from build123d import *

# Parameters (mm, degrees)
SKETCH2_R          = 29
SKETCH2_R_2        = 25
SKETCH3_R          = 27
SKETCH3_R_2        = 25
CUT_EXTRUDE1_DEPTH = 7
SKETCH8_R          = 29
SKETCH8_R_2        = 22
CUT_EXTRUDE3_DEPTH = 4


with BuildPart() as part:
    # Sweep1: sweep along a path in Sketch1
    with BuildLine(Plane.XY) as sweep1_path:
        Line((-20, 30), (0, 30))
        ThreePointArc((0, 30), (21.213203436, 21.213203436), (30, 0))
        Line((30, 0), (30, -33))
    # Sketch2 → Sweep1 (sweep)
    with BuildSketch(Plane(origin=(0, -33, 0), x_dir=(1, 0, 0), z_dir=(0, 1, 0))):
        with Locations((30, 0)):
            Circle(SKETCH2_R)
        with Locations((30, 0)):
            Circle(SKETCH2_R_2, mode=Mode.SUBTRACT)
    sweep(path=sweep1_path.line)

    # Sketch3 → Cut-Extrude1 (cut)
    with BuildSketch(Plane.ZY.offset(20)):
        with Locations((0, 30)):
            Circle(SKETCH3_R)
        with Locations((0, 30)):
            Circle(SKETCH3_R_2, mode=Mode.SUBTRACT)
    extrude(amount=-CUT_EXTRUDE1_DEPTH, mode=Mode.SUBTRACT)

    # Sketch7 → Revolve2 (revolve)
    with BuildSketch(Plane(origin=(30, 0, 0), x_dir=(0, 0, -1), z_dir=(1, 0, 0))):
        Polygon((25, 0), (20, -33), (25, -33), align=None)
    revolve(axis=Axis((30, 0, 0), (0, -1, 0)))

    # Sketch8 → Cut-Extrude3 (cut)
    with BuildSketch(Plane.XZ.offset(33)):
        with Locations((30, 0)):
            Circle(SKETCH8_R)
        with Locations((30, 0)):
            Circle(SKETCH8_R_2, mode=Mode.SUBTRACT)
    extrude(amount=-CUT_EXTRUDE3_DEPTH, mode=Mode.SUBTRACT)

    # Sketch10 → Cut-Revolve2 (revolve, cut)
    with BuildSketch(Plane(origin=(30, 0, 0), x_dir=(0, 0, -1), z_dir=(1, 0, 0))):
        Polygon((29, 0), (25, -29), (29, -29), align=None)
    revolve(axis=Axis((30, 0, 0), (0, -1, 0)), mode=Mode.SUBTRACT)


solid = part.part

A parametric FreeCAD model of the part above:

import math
import FreeCAD as App
import Part
import Sketcher

V = App.Vector

doc = App.newDocument("Part")
body = doc.addObject("PartDesign::Body", "Body")

# Sketch on XZ plane
sketch1 = body.newObject("Sketcher::SketchObject", "Sketch")
sketch1.AttachmentSupport = (doc.getObject("XZ_Plane"), [""])
sketch1.MapMode = "FlatFace"
sketch1.AttachmentOffset = App.Placement(V(0, 0, 33), App.Rotation())
sketch1.addGeometry([
    Part.Circle(V(30, 0, 0), V(0, 0, 1), 29),
    Part.Circle(V(30, 0, 0), V(0, 0, 1), 25),
], False)
sketch1.addConstraint([
    Sketcher.Constraint("Coincident", 1, 3, 0, 3),
    Sketcher.Constraint("PointOnObject", 0, 3, -1),
    Sketcher.Constraint("Diameter", 0, 58.0),
    Sketcher.Constraint("Diameter", 1, 50.0),
    Sketcher.Constraint("DistanceX", -1, 1, 0, 3, 30.0),
])

# Sketch on XY plane
sketch2 = body.newObject("Sketcher::SketchObject", "Sketch001")
sketch2.AttachmentSupport = (doc.getObject("XY_Plane"), [""])
sketch2.MapMode = "FlatFace"
sketch2.addGeometry([
    Part.LineSegment(V(-20, 30, 0), V(0, 30, 0)),
    Part.ArcOfCircle(Part.Circle(V(0, 0, 0), V(0, 0, 1), 30), math.radians(0), math.radians(90)),
    Part.LineSegment(V(30, 0, 0), V(30, -33, 0)),
], False)
sketch2.addConstraint([
    Sketcher.Constraint("Tangent", 0, 2, 1, 2),
    Sketcher.Constraint("Tangent", 1, 1, 2, 1),
    Sketcher.Constraint("Horizontal", 0),
    Sketcher.Constraint("Vertical", 2),
    Sketcher.Constraint("Coincident", 1, 3, -1, 1),
    Sketcher.Constraint("Radius", 1, 30.0),
    Sketcher.Constraint("DistanceX", 0, 1, 0, 2, 20.0),
    Sketcher.Constraint("DistanceY", 2, 2, 2, 1, 33.0),
])
doc.recompute()

additivepipe = body.newObject("PartDesign::AdditivePipe", "AdditivePipe")
additivepipe.Profile = sketch1
additivepipe.Spine = (sketch2, ["Edge1", "Edge2", "Edge3"])

# Sketch on YZ plane
sketch3 = body.newObject("Sketcher::SketchObject", "Sketch002")
sketch3.AttachmentSupport = (doc.getObject("YZ_Plane"), [""])
sketch3.MapMode = "FlatFace"
sketch3.AttachmentOffset = App.Placement(V(0, 0, -20), App.Rotation())
sketch3.addGeometry([
    Part.Circle(V(30, 0, 0), V(0, 0, 1), 27),
    Part.Circle(V(30, 0, 0), V(0, 0, 1), 25),
], False)
sketch3.addConstraint([
    Sketcher.Constraint("Coincident", 1, 3, 0, 3),
    Sketcher.Constraint("PointOnObject", 0, 3, -1),
    Sketcher.Constraint("Diameter", 0, 54.0),
    Sketcher.Constraint("Diameter", 1, 50.0),
    Sketcher.Constraint("DistanceX", -1, 1, 0, 3, 30.0),
])
pocket1 = body.newObject("PartDesign::Pocket", "Pocket")
pocket1.Profile = sketch3
pocket1.Length = 7
pocket1.Reversed = True

# Sketch on YZ plane
sketch4 = body.newObject("Sketcher::SketchObject", "Sketch003")
sketch4.AttachmentSupport = (doc.getObject("YZ_Plane"), [""])
sketch4.MapMode = "FlatFace"
sketch4.AttachmentOffset = App.Placement(V(0, 0, 30), App.Rotation())
sketch4.addGeometry([
    Part.LineSegment(V(0, -25, 0), V(-33, -20, 0)),
    Part.LineSegment(V(-33, -20, 0), V(-33, -25, 0)),
    Part.LineSegment(V(-33, -25, 0), V(0, -25, 0)),
], False)
sketch4.addConstraint([
    Sketcher.Constraint("Coincident", 0, 2, 1, 1),
    Sketcher.Constraint("Coincident", 1, 2, 2, 1),
    Sketcher.Constraint("Coincident", 2, 2, 0, 1),
    Sketcher.Constraint("Vertical", 1),
    Sketcher.Constraint("Horizontal", 2),
    Sketcher.Constraint("PointOnObject", 2, 2, -2),
    Sketcher.Constraint("DistanceX", 2, 1, 2, 2, 33.0),
    Sketcher.Constraint("DistanceY", 1, 2, 1, 1, 5.0),
    Sketcher.Constraint("DistanceY", 0, 2, -1, 1, 20.0),
])
revolution = body.newObject("PartDesign::Revolution", "Revolution")
revolution.Profile = sketch4
revolution.ReferenceAxis = (sketch4, ["H_Axis"])
revolution.Angle = 360

# Sketch on XZ plane
sketch5 = body.newObject("Sketcher::SketchObject", "Sketch004")
sketch5.AttachmentSupport = (doc.getObject("XZ_Plane"), [""])
sketch5.MapMode = "FlatFace"
sketch5.AttachmentOffset = App.Placement(V(0, 0, 33), App.Rotation())
sketch5.addGeometry([
    Part.Circle(V(30, 0, 0), V(0, 0, 1), 29),
    Part.Circle(V(30, 0, 0), V(0, 0, 1), 22),
], False)
sketch5.addConstraint([
    Sketcher.Constraint("Coincident", 1, 3, 0, 3),
    Sketcher.Constraint("PointOnObject", 0, 3, -1),
    Sketcher.Constraint("Diameter", 0, 58.0),
    Sketcher.Constraint("Diameter", 1, 44.0),
    Sketcher.Constraint("DistanceX", -1, 1, 0, 3, 30.0),
])
pocket2 = body.newObject("PartDesign::Pocket", "Pocket001")
pocket2.Profile = sketch5
pocket2.Length = 4

# Sketch on YZ plane
sketch6 = body.newObject("Sketcher::SketchObject", "Sketch005")
sketch6.AttachmentSupport = (doc.getObject("YZ_Plane"), [""])
sketch6.MapMode = "FlatFace"
sketch6.AttachmentOffset = App.Placement(V(0, 0, 30), App.Rotation())
sketch6.addGeometry([
    Part.LineSegment(V(0, -29, 0), V(-29, -25, 0)),
    Part.LineSegment(V(-29, -25, 0), V(-29, -29, 0)),
    Part.LineSegment(V(-29, -29, 0), V(0, -29, 0)),
], False)
sketch6.addConstraint([
    Sketcher.Constraint("Coincident", 0, 2, 1, 1),
    Sketcher.Constraint("Coincident", 1, 2, 2, 1),
    Sketcher.Constraint("Coincident", 2, 2, 0, 1),
    Sketcher.Constraint("Vertical", 1),
    Sketcher.Constraint("Horizontal", 2),
    Sketcher.Constraint("PointOnObject", 2, 2, -2),
    Sketcher.Constraint("DistanceX", 2, 1, 2, 2, 29.0),
    Sketcher.Constraint("DistanceY", 1, 2, 1, 1, 4.0),
    Sketcher.Constraint("DistanceY", 0, 2, -1, 1, 25.0),
])
groove = body.newObject("PartDesign::Groove", "Groove")
groove.Profile = sketch6
groove.ReferenceAxis = (sketch6, ["H_Axis"])
groove.Angle = 360

doc.recompute()
